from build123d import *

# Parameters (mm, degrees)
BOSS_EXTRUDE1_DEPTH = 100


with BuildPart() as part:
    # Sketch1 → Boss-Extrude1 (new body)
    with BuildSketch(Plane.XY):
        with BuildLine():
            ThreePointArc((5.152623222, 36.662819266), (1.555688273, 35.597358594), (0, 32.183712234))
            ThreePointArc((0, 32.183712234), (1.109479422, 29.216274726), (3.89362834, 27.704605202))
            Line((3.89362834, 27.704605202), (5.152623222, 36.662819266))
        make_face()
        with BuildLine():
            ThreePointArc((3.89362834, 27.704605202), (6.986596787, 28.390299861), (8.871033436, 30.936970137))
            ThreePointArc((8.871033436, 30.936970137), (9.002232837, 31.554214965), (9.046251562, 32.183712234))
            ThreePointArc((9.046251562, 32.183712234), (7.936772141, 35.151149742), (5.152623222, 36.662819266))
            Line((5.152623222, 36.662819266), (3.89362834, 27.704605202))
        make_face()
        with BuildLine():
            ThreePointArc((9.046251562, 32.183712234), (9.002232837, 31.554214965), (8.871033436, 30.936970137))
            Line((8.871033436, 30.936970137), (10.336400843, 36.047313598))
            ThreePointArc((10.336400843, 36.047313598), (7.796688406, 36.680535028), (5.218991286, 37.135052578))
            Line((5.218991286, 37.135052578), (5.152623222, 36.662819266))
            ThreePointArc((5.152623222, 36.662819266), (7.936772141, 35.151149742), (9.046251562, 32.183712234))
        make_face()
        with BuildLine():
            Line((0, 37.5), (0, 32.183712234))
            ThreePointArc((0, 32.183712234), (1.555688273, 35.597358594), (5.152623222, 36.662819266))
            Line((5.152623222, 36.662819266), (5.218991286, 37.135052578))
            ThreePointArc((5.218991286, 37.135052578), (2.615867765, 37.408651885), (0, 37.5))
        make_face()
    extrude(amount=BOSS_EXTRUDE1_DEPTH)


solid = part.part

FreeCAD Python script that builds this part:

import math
import FreeCAD as App
import Part
import Sketcher
from FreeCAD import Vector
Q = App.Units.Quantity

doc = App.newDocument("Part")
body = doc.addObject("PartDesign::Body", "Body")

# Sketch on XY plane
sketch1 = body.newObject("Sketcher::SketchObject", "Sketch")
sketch1.AttachmentSupport = (doc.getObject("XY_Plane"), [""])
sketch1.MapMode = "FlatFace"
sketch1.addGeometry([
    Part.ArcOfCircle(Part.Circle(Vector(4.5, 32.2, 0), Vector(0, 0, 1), 4.5), math.radians(-180), math.radians(-98)),  # 0
    Part.ArcOfCircle(Part.Circle(Vector(4.5, 32.2, 0), Vector(0, 0, 1), 4.5), math.radians(-98), math.radians(-16)),  # 1
    Part.LineSegment(Vector(8.9, 30.9, 0), Vector(10.3, 36, 0)),  # 2
    Part.ArcOfCircle(Part.Circle(Vector(0, 0, 0), Vector(0, 0, 1), 37.5), math.radians(74), math.radians(82)),  # 3
    Part.ArcOfCircle(Part.Circle(Vector(0, 0, 0), Vector(0, 0, 1), 37.5), math.radians(82), math.radians(90)),  # 4
    Part.LineSegment(Vector(0, 37.5, 0), Vector(0, 32.2, 0)),  # 5
], False)
sketch1.addConstraint([
    Sketcher.Constraint("Tangent", 0, 2, 1, 1),
    Sketcher.Constraint("Tangent", 1, 2, 2, 1),
    Sketcher.Constraint("Coincident", 2, 2, 3, 1),
    Sketcher.Constraint("Tangent", 3, 2, 4, 1),
    Sketcher.Constraint("Coincident", 4, 2, 5, 1),
    Sketcher.Constraint("Tangent", 5, 2, 0, 1),
    Sketcher.Constraint("Vertical", 5),
    Sketcher.Constraint("Coincident", 3, 3, -1, 1),
    Sketcher.Constraint("Equal", 0, 1),
    Sketcher.Constraint("Equal", 3, 4),
    Sketcher.Constraint("PointOnObject", 4, 2, -2),
    Sketcher.Constraint("Radius", 3, Q("37.5 mm")),
    Sketcher.Constraint("Angle", 2, Q("74 deg")),
    Sketcher.Constraint("Radius", 0, Q("4.523126 mm")),
    Sketcher.Constraint("DistanceX", -1, 1, 2, 2, Q("10.336401 mm")),
    Sketcher.Constraint("DistanceX", -1, 1, 0, 2, Q("3.893628 mm")),
    Sketcher.Constraint("DistanceX", -1, 1, 3, 2, Q("5.218991 mm")),
])
pad1 = body.newObject("PartDesign::Pad", "Pad")
pad1.Profile = sketch1
pad1.Length = 100

doc.recompute()
